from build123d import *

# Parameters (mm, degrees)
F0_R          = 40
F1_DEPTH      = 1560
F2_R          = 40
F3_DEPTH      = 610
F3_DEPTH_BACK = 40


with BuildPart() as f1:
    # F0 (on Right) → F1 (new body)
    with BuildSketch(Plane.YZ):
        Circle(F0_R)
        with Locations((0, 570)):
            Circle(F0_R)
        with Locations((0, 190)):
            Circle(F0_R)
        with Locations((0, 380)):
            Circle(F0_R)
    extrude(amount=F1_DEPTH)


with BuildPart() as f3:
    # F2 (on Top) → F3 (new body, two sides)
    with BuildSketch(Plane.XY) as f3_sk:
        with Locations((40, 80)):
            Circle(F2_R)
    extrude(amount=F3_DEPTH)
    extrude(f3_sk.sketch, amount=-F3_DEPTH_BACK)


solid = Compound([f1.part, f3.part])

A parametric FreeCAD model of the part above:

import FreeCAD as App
import Part
import Sketcher
from FreeCAD import Vector

doc = App.newDocument("Part")
body = doc.addObject("PartDesign::Body", "Body")
body.AllowCompound = True

sketch1 = doc.addObject("Sketcher::SketchObject", "Sketch")
body.addObject(sketch1)
sketch1.AttachmentSupport = (doc.YZ_Plane, [""])
sketch1.MapMode = "FlatFace"
sketch1.addGeometry([
    Part.Circle(Vector(0, 0, 0), Vector(0, 0, 1), 40),
    Part.Circle(Vector(0, 570, 0), Vector(0, 0, 1), 40),
    Part.Circle(Vector(0, 190, 0), Vector(0, 0, 1), 40),
    Part.Circle(Vector(0, 380, 0), Vector(0, 0, 1), 40),
], False)
sketch1.addConstraint([
    Sketcher.Constraint("Coincident", 0, 3, -1, 1),
    Sketcher.Constraint("Equal", 0, 1),
    Sketcher.Constraint("Equal", 1, 2),
    Sketcher.Constraint("Equal", 2, 3),
    Sketcher.Constraint("PointOnObject", 1, 3, -2),
    Sketcher.Constraint("PointOnObject", 2, 3, -2),
    Sketcher.Constraint("PointOnObject", 3, 3, -2),
    Sketcher.Constraint("Diameter", 0, 80.0),
    Sketcher.Constraint("DistanceY", -1, 1, 1, 3, 570.0),
    Sketcher.Constraint("DistanceY", -1, 1, 2, 3, 190.0),
    Sketcher.Constraint("DistanceY", -1, 1, 3, 3, 380.0),
])
pad1 = doc.addObject("PartDesign::Pad", "Pad")
body.addObject(pad1)
pad1.Profile = sketch1
pad1.Length = 1560
body2 = doc.addObject("PartDesign::Body", "Body001")

sketch2 = doc.addObject("Sketcher::SketchObject", "Sketch001")
body2.addObject(sketch2)
sketch2.AttachmentSupport = (doc.getObject("XY_Plane001"), [""])
sketch2.MapMode = "FlatFace"
sketch2.addGeometry(Part.Circle(Vector(40, 80, 0), Vector(0, 0, 1), 40), False)
sketch2.addConstraint([
    Sketcher.Constraint("Diameter", 0, 80.0),
    Sketcher.Constraint("DistanceX", -1, 1, 0, 3, 40.0),
    Sketcher.Constraint("DistanceY", -1, 1, 0, 3, 80.0),
])
pad2 = doc.addObject("PartDesign::Pad", "Pad001")
body2.addObject(pad2)
pad2.Profile = sketch2
pad2.Type = "TwoLengths"
pad2.Length = 610
pad2.Length2 = 40

doc.recompute()
